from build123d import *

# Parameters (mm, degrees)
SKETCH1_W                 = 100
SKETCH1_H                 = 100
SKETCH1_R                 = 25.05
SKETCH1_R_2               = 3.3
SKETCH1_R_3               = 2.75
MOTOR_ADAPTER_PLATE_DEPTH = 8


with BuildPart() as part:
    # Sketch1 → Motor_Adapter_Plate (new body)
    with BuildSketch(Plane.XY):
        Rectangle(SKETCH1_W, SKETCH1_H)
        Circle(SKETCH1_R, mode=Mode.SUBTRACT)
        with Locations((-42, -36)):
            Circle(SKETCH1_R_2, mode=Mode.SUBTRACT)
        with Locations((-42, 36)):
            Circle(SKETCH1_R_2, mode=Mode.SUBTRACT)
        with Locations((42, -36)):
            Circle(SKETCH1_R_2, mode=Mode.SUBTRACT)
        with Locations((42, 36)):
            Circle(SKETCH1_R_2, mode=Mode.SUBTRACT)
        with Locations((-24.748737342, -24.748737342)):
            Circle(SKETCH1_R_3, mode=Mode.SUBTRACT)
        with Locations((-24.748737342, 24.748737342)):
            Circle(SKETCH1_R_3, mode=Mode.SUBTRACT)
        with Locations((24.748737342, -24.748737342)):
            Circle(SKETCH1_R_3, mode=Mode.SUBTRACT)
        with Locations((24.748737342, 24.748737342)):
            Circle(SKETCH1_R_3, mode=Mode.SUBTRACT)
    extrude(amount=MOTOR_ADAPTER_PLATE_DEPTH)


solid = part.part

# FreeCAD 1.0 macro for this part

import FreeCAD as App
import Part
import Sketcher
from FreeCAD import Vector
Q = App.Units.Quantity


def add_polygon(sketch, points):
    """Adds a closed chain of lines whose ends are joined by coincident constraints."""
    first, n = sketch.GeometryCount, len(points)
    for a, b in zip(points, points[1:] + points[:1]):
        sketch.addGeometry(Part.LineSegment(App.Vector(*a, 0), App.Vector(*b, 0)), False)
    for i in range(n):
        sketch.addConstraint(Sketcher.Constraint("Coincident", first + i, 2, first + (i + 1) % n, 1))

doc = App.newDocument("Part")
body = doc.addObject("PartDesign::Body", "Body")

# Sketch on XY plane
sketch1 = doc.addObject("Sketcher::SketchObject", "Sketch")
body.addObject(sketch1)
sketch1.AttachmentSupport = (doc.XY_Plane, [""])
sketch1.MapMode = "FlatFace"
add_polygon(sketch1, [(-50, 50), (-50, -50), (50, -50), (50, 50)])  # lines 0-3
sketch1.addGeometry(Part.Circle(Vector(-42, -36, 0), Vector(0, 0, 1), 3.3), False)  # 4
sketch1.addGeometry(Part.Circle(Vector(-24.748737, -24.748737, 0), Vector(0, 0, 1), 2.75), False)  # 5
sketch1.addGeometry(Part.Circle(Vector(42, -36, 0), Vector(0, 0, 1), 3.3), False)  # 6
sketch1.addGeometry(Part.Circle(Vector(24.748737, -24.748737, 0), Vector(0, 0, 1), 2.75), False)  # 7
sketch1.addGeometry(Part.Circle(Vector(-24.748737, 24.748737, 0), Vector(0, 0, 1), 2.75), False)  # 8
sketch1.addGeometry(Part.Circle(Vector(-42, 36, 0), Vector(0, 0, 1), 3.3), False)  # 9
sketch1.addGeometry(Part.Circle(Vector(0, 0, 0), Vector(0, 0, 1), 25.05), False)  # 10
sketch1.addGeometry(Part.Circle(Vector(24.748737, 24.748737, 0), Vector(0, 0, 1), 2.75), False)  # 11
sketch1.addGeometry(Part.Circle(Vector(42, 36, 0), Vector(0, 0, 1), 3.3), False)  # 12
sketch1.addConstraint([
    Sketcher.Constraint("Vertical", 0),
    Sketcher.Constraint("Horizontal", 1),
    Sketcher.Constraint("Vertical", 2),
    Sketcher.Constraint("Horizontal", 3),
    Sketcher.Constraint("Coincident", 10, 3, -1, 1),
    Sketcher.Constraint("Equal", 4, 6),
    Sketcher.Constraint("Equal", 5, 7),
    Sketcher.Constraint("Equal", 7, 8),
    Sketcher.Constraint("Equal", 6, 9),
    Sketcher.Constraint("Equal", 8, 11),
    Sketcher.Constraint("Equal", 9, 12),
    Sketcher.Constraint("Symmetric", 7, 3, 8, 3, -1, 1),
    Sketcher.Constraint("Symmetric", 6, 3, 9, 3, -1, 1),
    Sketcher.Constraint("Symmetric", 5, 3, 11, 3, -1, 1),
    Sketcher.Constraint("Symmetric", 4, 3, 12, 3, -1, 1),
    Sketcher.Constraint("Symmetric", 0, 2, 2, 2, -1, 1),
    Sketcher.Constraint("Symmetric", 4, 3, 6, 3, -2),
    Sketcher.Constraint("Symmetric", 5, 3, 7, 3, -2),
    Sketcher.Constraint("Equal", 3, 0),
    Sketcher.Constraint("Diameter", 4, Q("6.6 mm")),
    Sketcher.Constraint("Diameter", 5, Q("5.5 mm")),
    Sketcher.Constraint("Diameter", 10, Q("50.1 mm")),
    Sketcher.Constraint("DistanceX", 1, 1, 1, 2, Q("100 mm")),
    Sketcher.Constraint("DistanceX", 4, 3, -1, 1, Q("42 mm")),
    Sketcher.Constraint("DistanceY", 4, 3, -1, 1, Q("36 mm")),
    Sketcher.Constraint("DistanceX", 5, 3, -1, 1, Q("24.748737 mm")),
    Sketcher.Constraint("DistanceY", 5, 3, -1, 1, Q("24.748737 mm")),
])
pad1 = doc.addObject("PartDesign::Pad", "Pad")
body.addObject(pad1)
pad1.Profile = sketch1
pad1.Length = 8

doc.recompute()
